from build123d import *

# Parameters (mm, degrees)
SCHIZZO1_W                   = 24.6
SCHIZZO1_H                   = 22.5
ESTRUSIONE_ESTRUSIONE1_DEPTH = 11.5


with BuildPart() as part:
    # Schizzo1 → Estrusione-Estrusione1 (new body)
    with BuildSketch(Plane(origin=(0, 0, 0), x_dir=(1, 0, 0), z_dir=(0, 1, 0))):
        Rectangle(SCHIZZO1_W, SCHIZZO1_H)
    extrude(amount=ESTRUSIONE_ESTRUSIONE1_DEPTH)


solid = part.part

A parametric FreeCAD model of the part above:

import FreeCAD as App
import Part
import Sketcher

V = App.Vector
Q = App.Units.Quantity

doc = App.newDocument("Part")
params = doc.addObject("Spreadsheet::Sheet", "Params")
for row, (alias, value) in enumerate([
    ("sketch1_width", "24.6 mm"),
    ("sketch1_height", "22.5 mm"),
    ("pad1_length", "11.5 mm"),
], start=1):
    params.set(f"A{row}", alias)
    params.set(f"B{row}", "=" + value)
    params.setAlias(f"B{row}", alias)

body = doc.addObject("PartDesign::Body", "Body")

sketch1 = doc.addObject("Sketcher::SketchObject", "Sketch")
body.addObject(sketch1)
sketch1.AttachmentSupport = (doc.XZ_Plane, [""])
sketch1.MapMode = "FlatFace"
sketch1.addGeometry([
    Part.LineSegment(V(-12.3, -11.25, 0), V(-12.3, 11.25, 0)),
    Part.LineSegment(V(-12.3, 11.25, 0), V(12.3, 11.25, 0)),
    Part.LineSegment(V(12.3, 11.25, 0), V(12.3, -11.25, 0)),
    Part.LineSegment(V(12.3, -11.25, 0), V(-12.3, -11.25, 0)),
], False)
sketch1.addConstraint([
    Sketcher.Constraint("Coincident", 0, 2, 1, 1),
    Sketcher.Constraint("Coincident", 1, 2, 2, 1),
    Sketcher.Constraint("Coincident", 2, 2, 3, 1),
    Sketcher.Constraint("Coincident", 3, 2, 0, 1),
    Sketcher.Constraint("Vertical", 0),
    Sketcher.Constraint("Horizontal", 1),
    Sketcher.Constraint("Vertical", 2),
    Sketcher.Constraint("Horizontal", 3),
    Sketcher.Constraint("Symmetric", 0, 2, 2, 2, -1, 1),
    Sketcher.Constraint("DistanceX", 1, 1, 1, 2, Q("24.6 mm")),
    Sketcher.Constraint("DistanceY", 0, 1, 0, 2, Q("22.5 mm")),
])
sketch1.setExpression("Constraints[9]", "Params.sketch1_width")
sketch1.setExpression("Constraints[10]", "Params.sketch1_height")
pad1 = doc.addObject("PartDesign::Pad", "Pad")
body.addObject(pad1)
pad1.Profile = sketch1
pad1.setExpression("Length", "Params.pad1_length")
pad1.Reversed = True

doc.recompute()
